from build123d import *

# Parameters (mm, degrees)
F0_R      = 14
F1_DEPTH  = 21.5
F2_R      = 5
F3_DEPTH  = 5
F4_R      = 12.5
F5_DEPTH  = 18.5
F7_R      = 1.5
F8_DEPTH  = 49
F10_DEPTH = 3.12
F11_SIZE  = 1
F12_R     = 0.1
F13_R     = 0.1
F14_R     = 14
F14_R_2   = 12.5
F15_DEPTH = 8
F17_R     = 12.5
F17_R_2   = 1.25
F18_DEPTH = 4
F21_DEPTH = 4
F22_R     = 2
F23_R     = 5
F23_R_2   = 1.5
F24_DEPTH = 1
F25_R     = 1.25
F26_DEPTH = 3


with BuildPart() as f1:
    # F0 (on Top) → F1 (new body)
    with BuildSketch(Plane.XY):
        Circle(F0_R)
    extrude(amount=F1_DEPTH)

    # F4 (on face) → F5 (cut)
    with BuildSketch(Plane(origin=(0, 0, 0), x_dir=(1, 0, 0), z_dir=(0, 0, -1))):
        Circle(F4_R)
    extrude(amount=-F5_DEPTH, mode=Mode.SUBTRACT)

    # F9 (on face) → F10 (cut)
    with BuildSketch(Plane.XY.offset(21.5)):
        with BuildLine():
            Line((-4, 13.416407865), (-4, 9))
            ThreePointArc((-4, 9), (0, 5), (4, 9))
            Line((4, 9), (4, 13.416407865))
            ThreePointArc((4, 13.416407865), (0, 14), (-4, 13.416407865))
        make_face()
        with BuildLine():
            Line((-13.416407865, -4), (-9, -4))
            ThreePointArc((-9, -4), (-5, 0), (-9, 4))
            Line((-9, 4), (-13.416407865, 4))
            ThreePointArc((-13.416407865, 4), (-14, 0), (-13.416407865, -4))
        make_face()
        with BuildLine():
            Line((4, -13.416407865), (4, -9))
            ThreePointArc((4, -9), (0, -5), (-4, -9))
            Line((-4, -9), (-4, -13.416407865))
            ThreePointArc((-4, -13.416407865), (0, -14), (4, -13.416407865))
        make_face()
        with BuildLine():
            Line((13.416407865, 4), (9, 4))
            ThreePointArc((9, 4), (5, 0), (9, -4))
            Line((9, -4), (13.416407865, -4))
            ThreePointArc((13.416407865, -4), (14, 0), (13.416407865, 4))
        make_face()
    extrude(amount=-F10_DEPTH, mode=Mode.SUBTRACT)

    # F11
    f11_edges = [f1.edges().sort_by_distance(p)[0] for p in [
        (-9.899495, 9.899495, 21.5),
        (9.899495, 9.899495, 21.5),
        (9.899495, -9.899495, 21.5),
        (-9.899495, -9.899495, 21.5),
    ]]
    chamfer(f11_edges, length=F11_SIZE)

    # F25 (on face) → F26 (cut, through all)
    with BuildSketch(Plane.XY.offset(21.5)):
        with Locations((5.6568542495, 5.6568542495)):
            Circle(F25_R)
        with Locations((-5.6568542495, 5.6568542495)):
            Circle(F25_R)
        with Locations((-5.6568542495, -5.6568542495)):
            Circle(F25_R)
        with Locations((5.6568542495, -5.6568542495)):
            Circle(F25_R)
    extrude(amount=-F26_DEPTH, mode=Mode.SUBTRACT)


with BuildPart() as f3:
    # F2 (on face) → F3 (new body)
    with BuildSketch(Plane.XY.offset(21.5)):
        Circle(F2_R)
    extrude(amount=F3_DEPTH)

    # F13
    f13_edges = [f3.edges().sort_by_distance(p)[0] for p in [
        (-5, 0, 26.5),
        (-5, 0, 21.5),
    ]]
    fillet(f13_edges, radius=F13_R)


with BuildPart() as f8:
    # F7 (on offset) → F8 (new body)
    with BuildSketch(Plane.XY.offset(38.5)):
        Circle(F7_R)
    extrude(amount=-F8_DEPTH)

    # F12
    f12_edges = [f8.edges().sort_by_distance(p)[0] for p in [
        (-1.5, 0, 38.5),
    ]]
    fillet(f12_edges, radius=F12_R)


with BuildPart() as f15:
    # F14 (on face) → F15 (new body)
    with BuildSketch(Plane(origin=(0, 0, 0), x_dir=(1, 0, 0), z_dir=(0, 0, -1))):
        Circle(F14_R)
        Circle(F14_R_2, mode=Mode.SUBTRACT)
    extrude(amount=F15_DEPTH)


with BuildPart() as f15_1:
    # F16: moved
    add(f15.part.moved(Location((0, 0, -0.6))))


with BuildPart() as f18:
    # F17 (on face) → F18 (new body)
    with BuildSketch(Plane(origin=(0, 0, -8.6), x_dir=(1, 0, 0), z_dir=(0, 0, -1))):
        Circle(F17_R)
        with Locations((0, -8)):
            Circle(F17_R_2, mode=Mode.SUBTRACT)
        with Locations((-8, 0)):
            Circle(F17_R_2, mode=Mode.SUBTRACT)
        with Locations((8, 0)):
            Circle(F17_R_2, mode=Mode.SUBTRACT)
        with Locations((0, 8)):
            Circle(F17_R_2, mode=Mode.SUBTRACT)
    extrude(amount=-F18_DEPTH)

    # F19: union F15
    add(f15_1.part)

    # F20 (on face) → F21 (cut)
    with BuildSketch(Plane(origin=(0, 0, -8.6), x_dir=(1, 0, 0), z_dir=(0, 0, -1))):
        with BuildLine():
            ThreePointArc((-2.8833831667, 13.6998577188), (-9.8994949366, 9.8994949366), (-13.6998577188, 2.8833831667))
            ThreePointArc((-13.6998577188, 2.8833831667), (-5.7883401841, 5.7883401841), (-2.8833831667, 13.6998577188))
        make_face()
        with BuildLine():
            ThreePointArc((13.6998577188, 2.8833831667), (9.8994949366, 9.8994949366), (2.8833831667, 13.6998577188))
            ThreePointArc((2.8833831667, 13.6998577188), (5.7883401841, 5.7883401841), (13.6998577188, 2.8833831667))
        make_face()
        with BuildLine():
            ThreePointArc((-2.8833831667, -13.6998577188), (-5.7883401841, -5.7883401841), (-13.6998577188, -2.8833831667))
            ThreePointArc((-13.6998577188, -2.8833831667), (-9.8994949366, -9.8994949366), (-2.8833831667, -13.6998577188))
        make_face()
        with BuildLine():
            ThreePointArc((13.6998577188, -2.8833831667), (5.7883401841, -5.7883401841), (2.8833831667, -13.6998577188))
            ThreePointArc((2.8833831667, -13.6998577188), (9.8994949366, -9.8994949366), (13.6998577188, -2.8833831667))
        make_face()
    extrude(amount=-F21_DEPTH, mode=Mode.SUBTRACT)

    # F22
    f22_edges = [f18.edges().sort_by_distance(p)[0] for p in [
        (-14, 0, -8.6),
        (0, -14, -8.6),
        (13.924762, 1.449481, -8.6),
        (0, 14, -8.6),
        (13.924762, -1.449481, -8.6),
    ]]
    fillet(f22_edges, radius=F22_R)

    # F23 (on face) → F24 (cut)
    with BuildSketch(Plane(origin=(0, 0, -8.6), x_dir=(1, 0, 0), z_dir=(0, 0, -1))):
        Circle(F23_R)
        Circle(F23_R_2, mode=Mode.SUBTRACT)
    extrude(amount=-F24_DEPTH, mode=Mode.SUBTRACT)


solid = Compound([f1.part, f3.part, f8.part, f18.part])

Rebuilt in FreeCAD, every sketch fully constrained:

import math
import FreeCAD as App
import Part
import Sketcher
from FreeCAD import Vector
Q = App.Units.Quantity


def edges_at(feature, points):
    """Names of the edges that pass closest to the given points."""
    edges = feature.Shape.Edges
    near = lambda p: min(range(len(edges)), key=lambda i: edges[i].distToShape(Part.Vertex(*p))[0])
    return sorted({f"Edge{near(p) + 1}" for p in points})

doc = App.newDocument("Part")
params = doc.addObject("Spreadsheet::Sheet", "Params")
for row, (alias, value) in enumerate([
    ("sketch1_diameter", "28 mm"),
    ("pad1_length", "21.5 mm"),
    ("sketch2_diameter", "25 mm"),
    ("pocket1_length", "18.5 mm"),
    ("sketch3_radius", "4 mm"),
    ("sketch3_radius2", "14 mm"),
    ("pocket2_length", "3.12 mm"),
    ("chamfer_size", "1 mm"),
    ("sketch4_diameter", "2.5 mm"),
    ("sketch5_diameter", "10 mm"),
    ("pad2_length", "5 mm"),
    ("fillet_radius", "0.1 mm"),
    ("sketch6_diameter", "3 mm"),
    ("pad3_length", "49 mm"),
    ("fillet2_radius", "0.1 mm"),
    ("sketch7_diameter", "28 mm"),
    ("sketch7_diameter2", "25 mm"),
    ("pad4_length", "8 mm"),
    ("sketch8_diameter", "25 mm"),
    ("sketch8_diameter2", "2.5 mm"),
    ("pad5_length", "4 mm"),
    ("sketch9_radius", "14 mm"),
    ("pocket4_length", "4 mm"),
    ("fillet3_radius", "2 mm"),
    ("sketch10_diameter", "10 mm"),
    ("sketch10_diameter2", "3 mm"),
    ("pocket5_length", "1 mm"),
], start=1):
    params.set(f"A{row}", alias)
    params.set(f"B{row}", "=" + value)
    params.setAlias(f"B{row}", alias)

body = doc.addObject("PartDesign::Body", "Body")

sketch1 = doc.addObject("Sketcher::SketchObject", "Sketch")
body.addObject(sketch1)
sketch1.AttachmentSupport = (doc.XY_Plane, [""])
sketch1.MapMode = "FlatFace"
sketch1.addGeometry(Part.Circle(Vector(0, 0, 0), Vector(0, 0, 1), 14), False)
sketch1.addConstraint(Sketcher.Constraint("Coincident", 0, 3, -1, 1))
sketch1.addConstraint(Sketcher.Constraint("Diameter", 0, Q("28 mm")))
sketch1.setExpression("Constraints[1]", "Params.sketch1_diameter")
pad1 = doc.addObject("PartDesign::Pad", "Pad")
body.addObject(pad1)
pad1.Profile = sketch1
pad1.setExpression("Length", "Params.pad1_length")

sketch2 = doc.addObject("Sketcher::SketchObject", "Sketch001")
body.addObject(sketch2)
sketch2.AttachmentSupport = (doc.XY_Plane, [""])
sketch2.MapMode = "FlatFace"
sketch2.addGeometry(Part.Circle(Vector(0, 0, 0), Vector(0, 0, 1), 12.5), False)
sketch2.addConstraint(Sketcher.Constraint("Coincident", 0, 3, -1, 1))
sketch2.addConstraint(Sketcher.Constraint("Diameter", 0, Q("25 mm")))
sketch2.setExpression("Constraints[1]", "Params.sketch2_diameter")
pocket1 = doc.addObject("PartDesign::Pocket", "Pocket")
body.addObject(pocket1)
pocket1.Profile = sketch2
pocket1.setExpression("Length", "Params.pocket1_length")
pocket1.Reversed = True

sketch3 = doc.addObject("Sketcher::SketchObject", "Sketch002")
body.addObject(sketch3)
sketch3.AttachmentSupport = (doc.XY_Plane, [""])
sketch3.MapMode = "FlatFace"
sketch3.AttachmentOffset = App.Placement(Vector(0, 0, 21.5), App.Rotation())
sketch3.addGeometry(Part.LineSegment(Vector(-4, 13.416408, 0), Vector(-4, 9, 0)), False)
sketch3.addGeometry(Part.ArcOfCircle(Part.Circle(Vector(0, 9, 0), Vector(0, 0, 1), 4), math.radians(180), math.radians(360)), False)
sketch3.addGeometry(Part.LineSegment(Vector(4, 9, 0), Vector(4, 13.416408, 0)), False)
sketch3.addGeometry(Part.ArcOfCircle(Part.Circle(Vector(0, 0, 0), Vector(0, 0, 1), 14), math.radians(73.39845), math.radians(106.60155)), False)
sketch3.addGeometry(Part.LineSegment(Vector(-13.416408, -4, 0), Vector(-9, -4, 0)), False)
sketch3.addGeometry(Part.ArcOfCircle(Part.Circle(Vector(-9, 0, 0), Vector(0, 0, 1), 4), math.radians(-90), math.radians(90)), False)
sketch3.addGeometry(Part.LineSegment(Vector(-9, 4, 0), Vector(-13.416408, 4, 0)), False)
sketch3.addGeometry(Part.ArcOfCircle(Part.Circle(Vector(0, 0, 0), Vector(0, 0, 1), 14), math.radians(163.39845), math.radians(196.60155)), False)
sketch3.addGeometry(Part.LineSegment(Vector(4, -13.416408, 0), Vector(4, -9, 0)), False)
sketch3.addGeometry(Part.ArcOfCircle(Part.Circle(Vector(0, -9, 0), Vector(0, 0, 1), 4), math.radians(0), math.radians(180)), False)
sketch3.addGeometry(Part.LineSegment(Vector(-4, -9, 0), Vector(-4, -13.416408, 0)), False)
sketch3.addGeometry(Part.ArcOfCircle(Part.Circle(Vector(0, 0, 0), Vector(0, 0, 1), 14), math.radians(-106.60155), math.radians(-73.39845)), False)
sketch3.addGeometry(Part.LineSegment(Vector(13.416408, 4, 0), Vector(9, 4, 0)), False)
sketch3.addGeometry(Part.ArcOfCircle(Part.Circle(Vector(9, 0, 0), Vector(0, 0, 1), 4), math.radians(90), math.radians(270)), False)
sketch3.addGeometry(Part.LineSegment(Vector(9, -4, 0), Vector(13.416408, -4, 0)), False)
sketch3.addGeometry(Part.ArcOfCircle(Part.Circle(Vector(0, 0, 0), Vector(0, 0, 1), 14), math.radians(-16.60155), math.radians(16.60155)), False)
sketch3.addConstraint(Sketcher.Constraint("Tangent", 0, 2, 1, 1))
sketch3.addConstraint(Sketcher.Constraint("Tangent", 1, 2, 2, 1))
sketch3.addConstraint(Sketcher.Constraint("Coincident", 2, 2, 3, 1))
sketch3.addConstraint(Sketcher.Constraint("Coincident", 3, 2, 0, 1))
sketch3.addConstraint(Sketcher.Constraint("Tangent", 4, 2, 5, 1))
sketch3.addConstraint(Sketcher.Constraint("Tangent", 5, 2, 6, 1))
sketch3.addConstraint(Sketcher.Constraint("Coincident", 6, 2, 7, 1))
sketch3.addConstraint(Sketcher.Constraint("Coincident", 7, 2, 4, 1))
sketch3.addConstraint(Sketcher.Constraint("Tangent", 8, 2, 9, 1))
sketch3.addConstraint(Sketcher.Constraint("Tangent", 9, 2, 10, 1))
sketch3.addConstraint(Sketcher.Constraint("Coincident", 10, 2, 11, 1))
sketch3.addConstraint(Sketcher.Constraint("Coincident", 11, 2, 8, 1))
sketch3.addConstraint(Sketcher.Constraint("Tangent", 12, 2, 13, 1))
sketch3.addConstraint(Sketcher.Constraint("Tangent", 13, 2, 14, 1))
sketch3.addConstraint(Sketcher.Constraint("Coincident", 14, 2, 15, 1))
sketch3.addConstraint(Sketcher.Constraint("Coincident", 15, 2, 12, 1))
sketch3.addConstraint(Sketcher.Constraint("Vertical", 0))
sketch3.addConstraint(Sketcher.Constraint("Vertical", 2))
sketch3.addConstraint(Sketcher.Constraint("Horizontal", 4))
sketch3.addConstraint(Sketcher.Constraint("Horizontal", 6))
sketch3.addConstraint(Sketcher.Constraint("Vertical", 8))
sketch3.addConstraint(Sketcher.Constraint("Vertical", 10))
sketch3.addConstraint(Sketcher.Constraint("Horizontal", 12))
sketch3.addConstraint(Sketcher.Constraint("Horizontal", 14))
sketch3.addConstraint(Sketcher.Constraint("Coincident", 3, 3, -1, 1))
sketch3.addConstraint(Sketcher.Constraint("Coincident", 7, 3, -1, 1))
sketch3.addConstraint(Sketcher.Constraint("Coincident", 11, 3, -1, 1))
sketch3.addConstraint(Sketcher.Constraint("Coincident", 15, 3, -1, 1))
sketch3.addConstraint(Sketcher.Constraint("Equal", 1, 5))
sketch3.addConstraint(Sketcher.Constraint("Equal", 3, 7))
sketch3.addConstraint(Sketcher.Constraint("Equal", 5, 9))
sketch3.addConstraint(Sketcher.Constraint("Equal", 7, 11))
sketch3.addConstraint(Sketcher.Constraint("Equal", 9, 13))
sketch3.addConstraint(Sketcher.Constraint("Equal", 11, 15))
sketch3.addConstraint(Sketcher.Constraint("Symmetric", 1, 3, 9, 3, -1, 1))
sketch3.addConstraint(Sketcher.Constraint("Symmetric", 5, 3, 13, 3, -1, 1))
sketch3.addConstraint(Sketcher.Constraint("PointOnObject", 1, 3, -2))
sketch3.addConstraint(Sketcher.Constraint("PointOnObject", 5, 3, -1))
sketch3.addConstraint(Sketcher.Constraint("Equal", 14, 0))
sketch3.addConstraint(Sketcher.Constraint("Radius", 1, Q("4 mm")))
sketch3.addConstraint(Sketcher.Constraint("Radius", 3, Q("14 mm")))
sketch3.addConstraint(Sketcher.Constraint("DistanceY", -1, 1, 1, 3, Q("9 mm")))
sketch3.setExpression("Constraints[39]", "Params.sketch3_radius")
sketch3.setExpression("Constraints[40]", "Params.sketch3_radius2")
pocket2 = doc.addObject("PartDesign::Pocket", "Pocket001")
body.addObject(pocket2)
pocket2.Profile = sketch3
pocket2.setExpression("Length", "Params.pocket2_length")
doc.recompute()

chamfer = doc.addObject("PartDesign::Chamfer", "Chamfer")
body.addObject(chamfer)
chamfer.Base = (pocket2, edges_at(pocket2, [
    (-9.899, 9.899, 21.5),
    (9.899, 9.899, 21.5),
    (9.899, -9.899, 21.5),
    (-9.899, -9.899, 21.5),
]))
chamfer.setExpression("Size", "Params.chamfer_size")

sketch4 = doc.addObject("Sketcher::SketchObject", "Sketch003")
body.addObject(sketch4)
sketch4.AttachmentSupport = (doc.XY_Plane, [""])
sketch4.MapMode = "FlatFace"
sketch4.AttachmentOffset = App.Placement(Vector(0, 0, 21.5), App.Rotation())
sketch4.addGeometry(Part.Circle(Vector(5.656854, 5.656854, 0), Vector(0, 0, 1), 1.25), False)
sketch4.addGeometry(Part.Circle(Vector(-5.656854, 5.656854, 0), Vector(0, 0, 1), 1.25), False)
sketch4.addGeometry(Part.Circle(Vector(-5.656854, -5.656854, 0), Vector(0, 0, 1), 1.25), False)
sketch4.addGeometry(Part.Circle(Vector(5.656854, -5.656854, 0), Vector(0, 0, 1), 1.25), False)
sketch4.addConstraint(Sketcher.Constraint("Equal", 0, 1))
sketch4.addConstraint(Sketcher.Constraint("Equal", 1, 2))
sketch4.addConstraint(Sketcher.Constraint("Equal", 2, 3))
sketch4.addConstraint(Sketcher.Constraint("Symmetric", 0, 3, 2, 3, -1, 1))
sketch4.addConstraint(Sketcher.Constraint("Symmetric", 1, 3, 3, 3, -1, 1))
sketch4.addConstraint(Sketcher.Constraint("Symmetric", 0, 3, 1, 3, -2))
sketch4.addConstraint(Sketcher.Constraint("Diameter", 0, Q("2.5 mm")))
sketch4.addConstraint(Sketcher.Constraint("DistanceX", 1, 3, 0, 3, Q("11.313709 mm")))
sketch4.addConstraint(Sketcher.Constraint("DistanceY", 2, 3, 1, 3, Q("11.313709 mm")))
sketch4.setExpression("Constraints[6]", "Params.sketch4_diameter")
pocket3 = doc.addObject("PartDesign::Pocket", "Pocket002")
body.addObject(pocket3)
pocket3.Profile = sketch4
pocket3.Type = "ThroughAll"
body2 = doc.addObject("PartDesign::Body", "Body001")

sketch5 = doc.addObject("Sketcher::SketchObject", "Sketch004")
body2.addObject(sketch5)
sketch5.AttachmentSupport = (doc.getObject("XY_Plane001"), [""])
sketch5.MapMode = "FlatFace"
sketch5.AttachmentOffset = App.Placement(Vector(0, 0, 21.5), App.Rotation())
sketch5.addGeometry(Part.Circle(Vector(0, 0, 0), Vector(0, 0, 1), 5), False)
sketch5.addConstraint(Sketcher.Constraint("Coincident", 0, 3, -1, 1))
sketch5.addConstraint(Sketcher.Constraint("Diameter", 0, Q("10 mm")))
sketch5.setExpression("Constraints[1]", "Params.sketch5_diameter")
pad2 = doc.addObject("PartDesign::Pad", "Pad001")
body2.addObject(pad2)
pad2.Profile = sketch5
pad2.setExpression("Length", "Params.pad2_length")
doc.recompute()

fillet = doc.addObject("PartDesign::Fillet", "Fillet")
body2.addObject(fillet)
fillet.Base = (pad2, edges_at(pad2, [(-5, 0, 26.5), (-5, 0, 21.5)]))
fillet.setExpression("Radius", "Params.fillet_radius")
body3 = doc.addObject("PartDesign::Body", "Body002")

sketch6 = doc.addObject("Sketcher::SketchObject", "Sketch005")
body3.addObject(sketch6)
sketch6.AttachmentSupport = (doc.getObject("XY_Plane002"), [""])
sketch6.MapMode = "FlatFace"
sketch6.AttachmentOffset = App.Placement(Vector(0, 0, 38.5), App.Rotation())
sketch6.addGeometry(Part.Circle(Vector(0, 0, 0), Vector(0, 0, 1), 1.5), False)
sketch6.addConstraint(Sketcher.Constraint("Coincident", 0, 3, -1, 1))
sketch6.addConstraint(Sketcher.Constraint("Diameter", 0, Q("3 mm")))
sketch6.setExpression("Constraints[1]", "Params.sketch6_diameter")
pad3 = doc.addObject("PartDesign::Pad", "Pad002")
body3.addObject(pad3)
pad3.Profile = sketch6
pad3.setExpression("Length", "Params.pad3_length")
pad3.Reversed = True
doc.recompute()

fillet2 = doc.addObject("PartDesign::Fillet", "Fillet001")
body3.addObject(fillet2)
fillet2.Base = (pad3, edges_at(pad3, [(-1.5, 0, 38.5)]))
fillet2.setExpression("Radius", "Params.fillet2_radius")
body4 = doc.addObject("PartDesign::Body", "Body003")

sketch7 = doc.addObject("Sketcher::SketchObject", "Sketch006")
body4.addObject(sketch7)
sketch7.AttachmentSupport = (doc.getObject("XY_Plane003"), [""])
sketch7.MapMode = "FlatFace"
sketch7.addGeometry(Part.Circle(Vector(0, 0, 0), Vector(0, 0, 1), 14), False)
sketch7.addGeometry(Part.Circle(Vector(0, 0, 0), Vector(0, 0, 1), 12.5), False)
sketch7.addConstraint(Sketcher.Constraint("Coincident", 0, 3, -1, 1))
sketch7.addConstraint(Sketcher.Constraint("Coincident", 1, 3, -1, 1))
sketch7.addConstraint(Sketcher.Constraint("Diameter", 0, Q("28 mm")))
sketch7.addConstraint(Sketcher.Constraint("Diameter", 1, Q("25 mm")))
sketch7.setExpression("Constraints[2]", "Params.sketch7_diameter")
sketch7.setExpression("Constraints[3]", "Params.sketch7_diameter2")
pad4 = doc.addObject("PartDesign::Pad", "Pad003")
body4.addObject(pad4)
pad4.Profile = sketch7
pad4.setExpression("Length", "Params.pad4_length")
pad4.Reversed = True
body5 = doc.addObject("PartDesign::Body", "Body004")
doc.recompute()

body4.Placement = App.Placement(Vector(0, 0, -0.6), App.Rotation(Vector(0, 0, 1), 0))
boolean = doc.addObject("PartDesign::Boolean", "Boolean")
body5.addObject(boolean)
boolean.Type = "Fuse"
boolean.addObjects([body4])
body6 = doc.addObject("PartDesign::Body", "Body005")

sketch8 = doc.addObject("Sketcher::SketchObject", "Sketch007")
body6.addObject(sketch8)
sketch8.AttachmentSupport = (doc.getObject("XY_Plane005"), [""])
sketch8.MapMode = "FlatFace"
sketch8.AttachmentOffset = App.Placement(Vector(0, 0, -8.6), App.Rotation())
sketch8.addGeometry(Part.Circle(Vector(0, 0, 0), Vector(0, 0, 1), 12.5), False)
sketch8.addGeometry(Part.Circle(Vector(0, 8, 0), Vector(0, 0, 1), 1.25), False)
sketch8.addGeometry(Part.Circle(Vector(-8, 0, 0), Vector(0, 0, 1), 1.25), False)
sketch8.addGeometry(Part.Circle(Vector(8, 0, 0), Vector(0, 0, 1), 1.25), False)
sketch8.addGeometry(Part.Circle(Vector(0, -8, 0), Vector(0, 0, 1), 1.25), False)
sketch8.addConstraint(Sketcher.Constraint("Coincident", 0, 3, -1, 1))
sketch8.addConstraint(Sketcher.Constraint("Equal", 1, 2))
sketch8.addConstraint(Sketcher.Constraint("Equal", 2, 3))
sketch8.addConstraint(Sketcher.Constraint("Equal", 3, 4))
sketch8.addConstraint(Sketcher.Constraint("Symmetric", 2, 3, 3, 3, -1, 1))
sketch8.addConstraint(Sketcher.Constraint("Symmetric", 1, 3, 4, 3, -1, 1))
sketch8.addConstraint(Sketcher.Constraint("PointOnObject", 1, 3, -2))
sketch8.addConstraint(Sketcher.Constraint("PointOnObject", 2, 3, -1))
sketch8.addConstraint(Sketcher.Constraint("Diameter", 0, Q("25 mm")))
sketch8.addConstraint(Sketcher.Constraint("Diameter", 1, Q("2.5 mm")))
sketch8.addConstraint(Sketcher.Constraint("DistanceY", -1, 1, 1, 3, Q("8 mm")))
sketch8.addConstraint(Sketcher.Constraint("DistanceX", 2, 3, -1, 1, Q("8 mm")))
sketch8.setExpression("Constraints[8]", "Params.sketch8_diameter")
sketch8.setExpression("Constraints[9]", "Params.sketch8_diameter2")
pad5 = doc.addObject("PartDesign::Pad", "Pad004")
body6.addObject(pad5)
pad5.Profile = sketch8
pad5.setExpression("Length", "Params.pad5_length")
doc.recompute()

boolean2 = doc.addObject("PartDesign::Boolean", "Boolean001")
body6.addObject(boolean2)
boolean2.Type = "Fuse"
boolean2.addObjects([body5])

sketch9 = doc.addObject("Sketcher::SketchObject", "Sketch008")
body6.addObject(sketch9)
sketch9.AttachmentSupport = (doc.getObject("XY_Plane005"), [""])
sketch9.MapMode = "FlatFace"
sketch9.AttachmentOffset = App.Placement(Vector(0, 0, -8.6), App.Rotation())
sketch9.addGeometry(Part.ArcOfCircle(Part.Circle(Vector(0, 0, 0), Vector(0, 0, 1), 14), math.radians(-168.114535), math.radians(-101.885465)), False)
sketch9.addGeometry(Part.ArcOfCircle(Part.Circle(Vector(-12.882121, -12.882121, 0), Vector(0, 0, 1), 10.032121), math.radians(-4.675473), math.radians(94.675473)), False)
sketch9.addGeometry(Part.ArcOfCircle(Part.Circle(Vector(0, 0, 0), Vector(0, 0, 1), 14), math.radians(-78.114535), math.radians(-11.885465)), False)
sketch9.addGeometry(Part.ArcOfCircle(Part.Circle(Vector(12.882121, -12.882121, 0), Vector(0, 0, 1), 10.032121), math.radians(85.324527), math.radians(184.675473)), False)
sketch9.addGeometry(Part.ArcOfCircle(Part.Circle(Vector(-12.882121, 12.882121, 0), Vector(0, 0, 1), 10.032121), math.radians(-94.675473), math.radians(4.675473)), False)
sketch9.addGeometry(Part.ArcOfCircle(Part.Circle(Vector(0, 0, 0), Vector(0, 0, 1), 14), math.radians(101.885465), math.radians(168.114535)), False)
sketch9.addGeometry(Part.ArcOfCircle(Part.Circle(Vector(12.882121, 12.882121, 0), Vector(0, 0, 1), 10.032121), math.radians(175.324527), math.radians(274.675473)), False)
sketch9.addGeometry(Part.ArcOfCircle(Part.Circle(Vector(0, 0, 0), Vector(0, 0, 1), 14), math.radians(11.885465), math.radians(78.114535)), False)
sketch9.addConstraint(Sketcher.Constraint("Coincident", 0, 1, 1, 2))
sketch9.addConstraint(Sketcher.Constraint("Coincident", 1, 1, 0, 2))
sketch9.addConstraint(Sketcher.Constraint("Coincident", 2, 1, 3, 2))
sketch9.addConstraint(Sketcher.Constraint("Coincident", 3, 1, 2, 2))
sketch9.addConstraint(Sketcher.Constraint("Coincident", 4, 1, 5, 2))
sketch9.addConstraint(Sketcher.Constraint("Coincident", 5, 1, 4, 2))
sketch9.addConstraint(Sketcher.Constraint("Coincident", 6, 1, 7, 2))
sketch9.addConstraint(Sketcher.Constraint("Coincident", 7, 1, 6, 2))
sketch9.addConstraint(Sketcher.Constraint("Coincident", 0, 3, -1, 1))
sketch9.addConstraint(Sketcher.Constraint("Coincident", 2, 3, -1, 1))
sketch9.addConstraint(Sketcher.Constraint("Coincident", 5, 3, -1, 1))
sketch9.addConstraint(Sketcher.Constraint("Coincident", 7, 3, -1, 1))
sketch9.addConstraint(Sketcher.Constraint("Equal", 0, 2))
sketch9.addConstraint(Sketcher.Constraint("Equal", 1, 3))
sketch9.addConstraint(Sketcher.Constraint("Equal", 3, 4))
sketch9.addConstraint(Sketcher.Constraint("Equal", 2, 5))
sketch9.addConstraint(Sketcher.Constraint("Equal", 4, 6))
sketch9.addConstraint(Sketcher.Constraint("Equal", 5, 7))
sketch9.addConstraint(Sketcher.Constraint("Symmetric", 3, 3, 4, 3, -1, 1))
sketch9.addConstraint(Sketcher.Constraint("Symmetric", 1, 3, 6, 3, -1, 1))
sketch9.addConstraint(Sketcher.Constraint("Symmetric", 1, 3, 3, 3, -2))
sketch9.addConstraint(Sketcher.Constraint("Radius", 0, Q("14 mm")))
sketch9.addConstraint(Sketcher.Constraint("Radius", 1, Q("10.032121 mm")))
sketch9.addConstraint(Sketcher.Constraint("DistanceX", 1, 3, -1, 1, Q("12.882121 mm")))
sketch9.addConstraint(Sketcher.Constraint("DistanceY", 1, 3, -1, 1, Q("12.882121 mm")))
sketch9.setExpression("Constraints[21]", "Params.sketch9_radius")
pocket4 = doc.addObject("PartDesign::Pocket", "Pocket003")
body6.addObject(pocket4)
pocket4.Profile = sketch9
pocket4.setExpression("Length", "Params.pocket4_length")
pocket4.Reversed = True
doc.recompute()

fillet3 = doc.addObject("PartDesign::Fillet", "Fillet002")
body6.addObject(fillet3)
fillet3.Base = (pocket4, edges_at(pocket4, [
    (-14, 0, -8.6),
    (0, -14, -8.6),
    (13.925, 1.449, -8.6),
    (0, 14, -8.6),
    (13.925, -1.449, -8.6),
]))
fillet3.setExpression("Radius", "Params.fillet3_radius")

sketch10 = doc.addObject("Sketcher::SketchObject", "Sketch009")
body6.addObject(sketch10)
sketch10.AttachmentSupport = (doc.getObject("XY_Plane005"), [""])
sketch10.MapMode = "FlatFace"
sketch10.AttachmentOffset = App.Placement(Vector(0, 0, -8.6), App.Rotation())
sketch10.addGeometry(Part.Circle(Vector(0, 0, 0), Vector(0, 0, 1), 5), False)
sketch10.addGeometry(Part.Circle(Vector(0, 0, 0), Vector(0, 0, 1), 1.5), False)
sketch10.addConstraint(Sketcher.Constraint("Coincident", 0, 3, -1, 1))
sketch10.addConstraint(Sketcher.Constraint("Coincident", 1, 3, -1, 1))
sketch10.addConstraint(Sketcher.Constraint("Diameter", 0, Q("10 mm")))
sketch10.addConstraint(Sketcher.Constraint("Diameter", 1, Q("3 mm")))
sketch10.setExpression("Constraints[2]", "Params.sketch10_diameter")
sketch10.setExpression("Constraints[3]", "Params.sketch10_diameter2")
pocket5 = doc.addObject("PartDesign::Pocket", "Pocket004")
body6.addObject(pocket5)
pocket5.Profile = sketch10
pocket5.setExpression("Length", "Params.pocket5_length")
pocket5.Reversed = True

doc.recompute()
